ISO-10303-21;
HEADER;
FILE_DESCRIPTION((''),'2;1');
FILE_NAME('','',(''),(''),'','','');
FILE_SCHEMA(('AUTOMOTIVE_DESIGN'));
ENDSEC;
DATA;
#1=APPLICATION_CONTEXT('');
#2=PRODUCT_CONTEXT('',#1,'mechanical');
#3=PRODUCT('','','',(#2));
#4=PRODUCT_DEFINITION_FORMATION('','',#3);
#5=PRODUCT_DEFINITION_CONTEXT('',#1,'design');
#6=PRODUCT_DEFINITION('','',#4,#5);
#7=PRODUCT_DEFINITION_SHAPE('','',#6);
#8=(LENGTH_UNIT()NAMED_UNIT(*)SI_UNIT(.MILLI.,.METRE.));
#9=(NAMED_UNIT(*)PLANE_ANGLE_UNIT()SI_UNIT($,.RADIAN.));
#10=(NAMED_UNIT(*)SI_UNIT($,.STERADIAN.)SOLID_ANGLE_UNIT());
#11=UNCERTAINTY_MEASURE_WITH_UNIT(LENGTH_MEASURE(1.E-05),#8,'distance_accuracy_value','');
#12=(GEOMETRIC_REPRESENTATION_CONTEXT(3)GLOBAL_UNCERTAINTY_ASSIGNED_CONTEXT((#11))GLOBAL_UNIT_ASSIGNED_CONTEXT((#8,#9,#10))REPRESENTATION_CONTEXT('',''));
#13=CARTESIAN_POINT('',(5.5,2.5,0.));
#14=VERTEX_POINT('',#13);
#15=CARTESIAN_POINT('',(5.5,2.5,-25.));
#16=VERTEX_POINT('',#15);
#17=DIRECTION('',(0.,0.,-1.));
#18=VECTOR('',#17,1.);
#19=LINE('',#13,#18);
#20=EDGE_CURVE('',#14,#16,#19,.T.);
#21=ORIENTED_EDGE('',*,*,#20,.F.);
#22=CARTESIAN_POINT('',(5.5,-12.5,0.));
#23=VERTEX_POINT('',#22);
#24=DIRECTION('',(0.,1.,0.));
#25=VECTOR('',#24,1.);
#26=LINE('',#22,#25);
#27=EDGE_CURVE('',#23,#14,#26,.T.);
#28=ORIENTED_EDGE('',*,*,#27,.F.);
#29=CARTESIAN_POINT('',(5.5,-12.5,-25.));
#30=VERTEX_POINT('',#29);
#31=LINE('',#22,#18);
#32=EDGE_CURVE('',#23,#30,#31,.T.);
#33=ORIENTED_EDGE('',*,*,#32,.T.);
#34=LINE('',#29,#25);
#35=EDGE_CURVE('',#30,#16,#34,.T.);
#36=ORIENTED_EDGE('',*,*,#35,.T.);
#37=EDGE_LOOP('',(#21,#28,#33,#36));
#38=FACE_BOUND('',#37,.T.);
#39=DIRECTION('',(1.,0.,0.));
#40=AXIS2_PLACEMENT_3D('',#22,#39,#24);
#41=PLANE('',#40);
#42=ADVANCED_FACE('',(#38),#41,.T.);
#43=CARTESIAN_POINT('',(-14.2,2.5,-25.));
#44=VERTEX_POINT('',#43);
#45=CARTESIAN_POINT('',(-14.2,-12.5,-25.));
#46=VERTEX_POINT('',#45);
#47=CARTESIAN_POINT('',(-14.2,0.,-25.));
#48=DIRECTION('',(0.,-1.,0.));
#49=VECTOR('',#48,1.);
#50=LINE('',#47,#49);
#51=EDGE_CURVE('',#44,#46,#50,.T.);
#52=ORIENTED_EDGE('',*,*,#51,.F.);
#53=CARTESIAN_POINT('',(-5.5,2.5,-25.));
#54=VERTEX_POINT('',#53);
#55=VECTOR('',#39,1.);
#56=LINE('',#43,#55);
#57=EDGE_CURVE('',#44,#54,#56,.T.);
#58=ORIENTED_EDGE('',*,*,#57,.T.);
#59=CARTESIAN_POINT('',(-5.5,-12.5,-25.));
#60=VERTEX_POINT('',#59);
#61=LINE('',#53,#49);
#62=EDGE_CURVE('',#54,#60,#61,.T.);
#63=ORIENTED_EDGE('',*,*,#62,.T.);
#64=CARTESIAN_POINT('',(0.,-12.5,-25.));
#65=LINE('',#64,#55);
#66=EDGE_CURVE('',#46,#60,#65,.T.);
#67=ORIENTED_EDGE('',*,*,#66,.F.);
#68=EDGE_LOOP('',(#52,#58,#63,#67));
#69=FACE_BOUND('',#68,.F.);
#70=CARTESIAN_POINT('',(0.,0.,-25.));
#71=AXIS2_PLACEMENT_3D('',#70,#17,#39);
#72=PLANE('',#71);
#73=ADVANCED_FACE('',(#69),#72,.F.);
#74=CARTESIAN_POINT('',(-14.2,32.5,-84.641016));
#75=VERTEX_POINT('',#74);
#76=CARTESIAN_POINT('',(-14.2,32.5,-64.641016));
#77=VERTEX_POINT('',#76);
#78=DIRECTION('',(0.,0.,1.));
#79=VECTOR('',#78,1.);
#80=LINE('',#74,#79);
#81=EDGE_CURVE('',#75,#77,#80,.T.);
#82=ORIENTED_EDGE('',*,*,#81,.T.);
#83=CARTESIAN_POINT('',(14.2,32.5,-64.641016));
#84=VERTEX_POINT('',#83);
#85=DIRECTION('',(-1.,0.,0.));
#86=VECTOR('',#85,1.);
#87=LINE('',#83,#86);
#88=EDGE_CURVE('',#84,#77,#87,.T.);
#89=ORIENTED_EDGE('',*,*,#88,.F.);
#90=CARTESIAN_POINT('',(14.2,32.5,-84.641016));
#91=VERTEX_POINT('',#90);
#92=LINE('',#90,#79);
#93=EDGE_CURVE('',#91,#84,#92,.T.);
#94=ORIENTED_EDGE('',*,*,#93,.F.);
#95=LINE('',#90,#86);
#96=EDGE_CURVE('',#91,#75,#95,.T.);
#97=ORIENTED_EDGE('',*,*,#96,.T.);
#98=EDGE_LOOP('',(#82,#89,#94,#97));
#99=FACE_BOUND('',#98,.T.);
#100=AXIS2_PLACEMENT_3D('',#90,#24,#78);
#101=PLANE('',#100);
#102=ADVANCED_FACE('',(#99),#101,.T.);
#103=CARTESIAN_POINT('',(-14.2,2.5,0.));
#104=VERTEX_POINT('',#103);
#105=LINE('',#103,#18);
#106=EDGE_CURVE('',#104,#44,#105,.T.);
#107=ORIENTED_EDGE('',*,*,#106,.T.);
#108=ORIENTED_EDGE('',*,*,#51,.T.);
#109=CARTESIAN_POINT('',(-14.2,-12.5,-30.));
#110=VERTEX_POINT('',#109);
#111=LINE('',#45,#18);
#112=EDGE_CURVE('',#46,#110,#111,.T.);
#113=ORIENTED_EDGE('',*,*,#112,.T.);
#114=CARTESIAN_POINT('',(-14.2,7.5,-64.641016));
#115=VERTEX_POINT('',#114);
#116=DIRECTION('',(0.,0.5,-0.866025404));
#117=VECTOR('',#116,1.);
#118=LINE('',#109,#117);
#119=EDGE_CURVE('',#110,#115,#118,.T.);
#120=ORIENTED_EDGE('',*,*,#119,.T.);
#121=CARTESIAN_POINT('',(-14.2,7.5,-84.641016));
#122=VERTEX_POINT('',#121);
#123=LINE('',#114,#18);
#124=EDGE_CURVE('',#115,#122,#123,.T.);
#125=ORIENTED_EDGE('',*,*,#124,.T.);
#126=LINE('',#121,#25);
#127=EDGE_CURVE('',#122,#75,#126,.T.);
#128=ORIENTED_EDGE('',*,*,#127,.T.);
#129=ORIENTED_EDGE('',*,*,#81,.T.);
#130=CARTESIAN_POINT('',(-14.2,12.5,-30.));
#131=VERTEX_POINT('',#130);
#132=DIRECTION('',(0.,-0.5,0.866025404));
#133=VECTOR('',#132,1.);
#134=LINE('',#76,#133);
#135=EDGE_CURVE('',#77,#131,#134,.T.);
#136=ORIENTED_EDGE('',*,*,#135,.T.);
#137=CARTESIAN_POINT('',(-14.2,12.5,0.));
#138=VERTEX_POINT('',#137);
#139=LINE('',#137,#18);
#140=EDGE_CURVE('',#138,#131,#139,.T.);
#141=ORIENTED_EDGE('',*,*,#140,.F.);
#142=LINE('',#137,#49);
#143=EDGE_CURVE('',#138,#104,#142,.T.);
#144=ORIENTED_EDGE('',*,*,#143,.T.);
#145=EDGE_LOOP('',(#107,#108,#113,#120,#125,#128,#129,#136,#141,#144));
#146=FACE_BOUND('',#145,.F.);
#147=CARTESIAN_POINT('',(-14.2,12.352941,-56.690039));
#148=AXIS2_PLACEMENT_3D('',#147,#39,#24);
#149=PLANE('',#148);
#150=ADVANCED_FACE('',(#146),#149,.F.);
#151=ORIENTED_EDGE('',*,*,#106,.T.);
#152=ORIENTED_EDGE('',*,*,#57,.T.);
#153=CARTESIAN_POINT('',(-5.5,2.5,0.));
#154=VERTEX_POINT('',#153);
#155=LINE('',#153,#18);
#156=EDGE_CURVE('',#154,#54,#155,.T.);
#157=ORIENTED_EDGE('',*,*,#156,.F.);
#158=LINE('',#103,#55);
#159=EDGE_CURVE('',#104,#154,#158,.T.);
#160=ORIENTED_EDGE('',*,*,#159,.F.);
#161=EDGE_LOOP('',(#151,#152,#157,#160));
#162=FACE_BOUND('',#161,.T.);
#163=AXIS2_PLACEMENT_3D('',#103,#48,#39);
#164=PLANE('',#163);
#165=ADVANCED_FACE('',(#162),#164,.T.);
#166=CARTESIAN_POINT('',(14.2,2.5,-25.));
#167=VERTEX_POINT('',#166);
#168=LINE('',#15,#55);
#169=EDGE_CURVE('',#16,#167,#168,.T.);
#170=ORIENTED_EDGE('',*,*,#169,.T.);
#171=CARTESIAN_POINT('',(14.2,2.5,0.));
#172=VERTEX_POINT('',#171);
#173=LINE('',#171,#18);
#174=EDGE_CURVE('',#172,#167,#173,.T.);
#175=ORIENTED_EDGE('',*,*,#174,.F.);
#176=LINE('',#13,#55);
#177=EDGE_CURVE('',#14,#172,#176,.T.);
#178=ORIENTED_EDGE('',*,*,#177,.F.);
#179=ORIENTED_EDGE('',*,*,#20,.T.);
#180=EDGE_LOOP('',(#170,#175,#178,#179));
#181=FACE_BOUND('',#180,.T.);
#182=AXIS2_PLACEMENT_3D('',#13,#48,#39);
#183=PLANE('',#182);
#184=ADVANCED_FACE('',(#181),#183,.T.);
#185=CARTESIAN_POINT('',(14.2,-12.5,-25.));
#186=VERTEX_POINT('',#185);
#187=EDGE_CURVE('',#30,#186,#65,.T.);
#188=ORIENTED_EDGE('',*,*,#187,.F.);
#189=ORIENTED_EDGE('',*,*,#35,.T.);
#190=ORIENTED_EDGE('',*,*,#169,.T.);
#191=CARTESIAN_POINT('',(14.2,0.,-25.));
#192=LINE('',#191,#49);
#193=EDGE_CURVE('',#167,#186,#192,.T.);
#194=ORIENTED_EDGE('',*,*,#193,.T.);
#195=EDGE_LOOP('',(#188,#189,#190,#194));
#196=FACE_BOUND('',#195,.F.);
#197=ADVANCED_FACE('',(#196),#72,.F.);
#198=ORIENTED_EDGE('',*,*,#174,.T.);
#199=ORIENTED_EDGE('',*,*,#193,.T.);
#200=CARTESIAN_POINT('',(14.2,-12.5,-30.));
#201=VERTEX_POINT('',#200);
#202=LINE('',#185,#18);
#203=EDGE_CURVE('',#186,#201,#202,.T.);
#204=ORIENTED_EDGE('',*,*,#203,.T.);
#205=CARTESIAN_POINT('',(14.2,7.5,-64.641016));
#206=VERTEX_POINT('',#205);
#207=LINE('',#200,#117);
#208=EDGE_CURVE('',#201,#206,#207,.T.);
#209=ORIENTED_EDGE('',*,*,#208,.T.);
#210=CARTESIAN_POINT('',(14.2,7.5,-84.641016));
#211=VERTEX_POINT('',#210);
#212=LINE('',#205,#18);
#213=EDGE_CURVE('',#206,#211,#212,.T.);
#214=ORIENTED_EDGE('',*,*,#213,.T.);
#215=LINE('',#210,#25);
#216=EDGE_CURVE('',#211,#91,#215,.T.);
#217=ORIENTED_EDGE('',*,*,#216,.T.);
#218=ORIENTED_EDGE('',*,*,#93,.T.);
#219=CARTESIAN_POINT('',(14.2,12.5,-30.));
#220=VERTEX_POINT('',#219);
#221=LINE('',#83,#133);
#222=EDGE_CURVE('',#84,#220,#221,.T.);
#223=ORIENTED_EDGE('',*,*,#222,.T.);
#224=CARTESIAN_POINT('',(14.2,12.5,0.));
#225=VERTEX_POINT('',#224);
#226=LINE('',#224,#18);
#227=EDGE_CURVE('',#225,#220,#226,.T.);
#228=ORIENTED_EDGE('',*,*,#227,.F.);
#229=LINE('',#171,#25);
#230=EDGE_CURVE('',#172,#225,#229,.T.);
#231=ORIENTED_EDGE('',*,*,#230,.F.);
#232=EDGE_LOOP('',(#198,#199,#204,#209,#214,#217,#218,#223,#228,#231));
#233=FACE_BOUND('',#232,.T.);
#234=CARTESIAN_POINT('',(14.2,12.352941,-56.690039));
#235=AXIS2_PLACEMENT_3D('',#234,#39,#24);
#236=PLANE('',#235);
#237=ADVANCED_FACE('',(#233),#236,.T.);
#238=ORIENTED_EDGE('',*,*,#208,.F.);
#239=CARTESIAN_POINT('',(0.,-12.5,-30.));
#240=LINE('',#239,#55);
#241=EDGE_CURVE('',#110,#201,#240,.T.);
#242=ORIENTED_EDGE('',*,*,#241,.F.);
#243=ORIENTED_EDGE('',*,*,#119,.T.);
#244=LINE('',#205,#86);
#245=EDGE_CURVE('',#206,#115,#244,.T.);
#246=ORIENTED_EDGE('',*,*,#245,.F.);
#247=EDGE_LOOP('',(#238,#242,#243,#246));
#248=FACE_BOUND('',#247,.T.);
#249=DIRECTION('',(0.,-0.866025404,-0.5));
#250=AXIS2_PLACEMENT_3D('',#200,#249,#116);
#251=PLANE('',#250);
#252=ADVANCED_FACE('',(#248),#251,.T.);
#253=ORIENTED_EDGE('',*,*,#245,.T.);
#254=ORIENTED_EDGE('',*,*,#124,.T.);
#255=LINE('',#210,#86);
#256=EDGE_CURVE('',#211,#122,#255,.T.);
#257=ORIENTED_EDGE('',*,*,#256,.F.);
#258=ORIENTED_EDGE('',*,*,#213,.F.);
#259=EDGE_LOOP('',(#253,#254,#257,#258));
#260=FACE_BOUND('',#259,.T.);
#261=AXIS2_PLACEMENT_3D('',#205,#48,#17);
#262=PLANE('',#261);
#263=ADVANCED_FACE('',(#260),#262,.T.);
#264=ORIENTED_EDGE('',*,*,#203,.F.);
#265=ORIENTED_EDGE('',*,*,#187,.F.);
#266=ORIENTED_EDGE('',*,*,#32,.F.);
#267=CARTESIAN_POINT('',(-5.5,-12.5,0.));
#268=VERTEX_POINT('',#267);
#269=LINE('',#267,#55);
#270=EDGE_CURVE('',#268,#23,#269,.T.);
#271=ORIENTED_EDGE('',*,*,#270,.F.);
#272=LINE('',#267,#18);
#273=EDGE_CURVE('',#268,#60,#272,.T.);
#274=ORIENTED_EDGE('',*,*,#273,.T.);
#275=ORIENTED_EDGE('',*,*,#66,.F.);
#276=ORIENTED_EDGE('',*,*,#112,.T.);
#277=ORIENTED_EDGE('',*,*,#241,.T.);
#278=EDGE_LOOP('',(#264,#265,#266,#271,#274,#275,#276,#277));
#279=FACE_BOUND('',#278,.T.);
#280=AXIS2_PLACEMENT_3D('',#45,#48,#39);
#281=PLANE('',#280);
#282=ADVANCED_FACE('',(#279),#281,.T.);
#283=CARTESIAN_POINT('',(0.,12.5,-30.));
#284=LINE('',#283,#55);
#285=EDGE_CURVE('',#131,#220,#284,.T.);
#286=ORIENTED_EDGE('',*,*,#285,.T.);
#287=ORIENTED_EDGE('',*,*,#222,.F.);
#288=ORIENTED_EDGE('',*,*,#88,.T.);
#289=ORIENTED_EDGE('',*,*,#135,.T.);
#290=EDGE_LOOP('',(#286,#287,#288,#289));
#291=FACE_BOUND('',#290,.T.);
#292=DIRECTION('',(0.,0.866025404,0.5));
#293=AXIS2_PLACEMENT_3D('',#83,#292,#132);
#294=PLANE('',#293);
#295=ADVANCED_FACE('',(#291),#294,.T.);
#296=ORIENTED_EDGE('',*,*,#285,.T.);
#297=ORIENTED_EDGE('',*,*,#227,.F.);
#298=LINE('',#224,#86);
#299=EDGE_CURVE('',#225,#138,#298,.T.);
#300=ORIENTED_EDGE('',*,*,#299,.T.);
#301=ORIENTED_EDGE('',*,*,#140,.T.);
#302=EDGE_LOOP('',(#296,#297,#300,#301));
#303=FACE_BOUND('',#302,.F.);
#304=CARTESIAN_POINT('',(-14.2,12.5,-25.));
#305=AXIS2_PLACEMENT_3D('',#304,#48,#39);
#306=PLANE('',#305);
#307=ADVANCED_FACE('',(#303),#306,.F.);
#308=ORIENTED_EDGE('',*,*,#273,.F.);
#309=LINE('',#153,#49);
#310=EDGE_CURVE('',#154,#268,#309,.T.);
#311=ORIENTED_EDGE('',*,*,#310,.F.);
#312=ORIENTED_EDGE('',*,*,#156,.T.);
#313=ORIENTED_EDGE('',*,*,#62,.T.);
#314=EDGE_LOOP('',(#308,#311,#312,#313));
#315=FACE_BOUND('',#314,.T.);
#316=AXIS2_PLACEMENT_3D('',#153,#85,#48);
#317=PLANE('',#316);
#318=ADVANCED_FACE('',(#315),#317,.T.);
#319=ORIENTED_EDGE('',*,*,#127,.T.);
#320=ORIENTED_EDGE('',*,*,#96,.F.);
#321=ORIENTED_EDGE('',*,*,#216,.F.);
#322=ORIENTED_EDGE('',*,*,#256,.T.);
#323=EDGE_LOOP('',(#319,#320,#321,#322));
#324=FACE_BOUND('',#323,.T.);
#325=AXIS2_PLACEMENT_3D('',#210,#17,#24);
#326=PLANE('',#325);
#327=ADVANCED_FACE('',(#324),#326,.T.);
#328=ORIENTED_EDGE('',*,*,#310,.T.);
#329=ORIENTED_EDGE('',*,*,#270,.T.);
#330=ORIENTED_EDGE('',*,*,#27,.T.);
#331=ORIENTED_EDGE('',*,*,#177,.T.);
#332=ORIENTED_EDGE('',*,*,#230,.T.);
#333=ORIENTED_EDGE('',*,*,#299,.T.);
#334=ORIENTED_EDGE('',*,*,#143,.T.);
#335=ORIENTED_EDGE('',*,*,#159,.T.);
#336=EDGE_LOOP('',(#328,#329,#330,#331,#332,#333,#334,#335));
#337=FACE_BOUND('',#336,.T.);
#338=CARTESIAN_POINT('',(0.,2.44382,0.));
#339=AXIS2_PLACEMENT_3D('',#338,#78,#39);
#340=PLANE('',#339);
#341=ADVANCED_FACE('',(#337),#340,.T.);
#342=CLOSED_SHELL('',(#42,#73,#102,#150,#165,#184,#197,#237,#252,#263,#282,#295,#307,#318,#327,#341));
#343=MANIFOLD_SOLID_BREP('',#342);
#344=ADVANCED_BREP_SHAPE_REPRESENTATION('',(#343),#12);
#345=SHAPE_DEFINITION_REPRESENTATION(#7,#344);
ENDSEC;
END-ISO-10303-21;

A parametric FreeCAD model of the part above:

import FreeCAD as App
import Part
import Sketcher

V = App.Vector
Q = App.Units.Quantity


def add_polygon(sketch, points):
    """Adds a closed chain of lines whose ends are joined by coincident constraints."""
    first, n = sketch.GeometryCount, len(points)
    for a, b in zip(points, points[1:] + points[:1]):
        sketch.addGeometry(Part.LineSegment(App.Vector(*a, 0), App.Vector(*b, 0)), False)
    for i in range(n):
        sketch.addConstraint(Sketcher.Constraint("Coincident", first + i, 2, first + (i + 1) % n, 1))

doc = App.newDocument("Part")
params = doc.addObject("Spreadsheet::Sheet", "Params")
for row, (alias, value) in enumerate([
    ("sketch1_width", "11 mm"),
    ("sketch1_height", "15 mm"),
    ("sketch1_height2", "10 mm"),
    ("sketch1_width2", "8.7 mm"),
    ("pad1_length", "25 mm"),
    ("sketch2_height", "25 mm"),
    ("sketch2_width", "28.4 mm"),
    ("pad2_length", "5 mm"),
    ("sketch3_width", "25 mm"),
    ("sketch3_height", "20 mm"),
    ("sketch3_length", "40 mm"),
    ("pad3_length", "28.4 mm"),
], start=1):
    params.set(f"A{row}", alias)
    params.set(f"B{row}", "=" + value)
    params.setAlias(f"B{row}", alias)

body = doc.addObject("PartDesign::Body", "Body")

# Sketch on XY plane
sketch1 = body.newObject("Sketcher::SketchObject", "Sketch")
sketch1.AttachmentSupport = (doc.getObject("XY_Plane"), [""])
sketch1.MapMode = "FlatFace"
add_polygon(sketch1, [(-5.5, 2.5), (-5.5, -12.5), (5.5, -12.5), (5.5, 2.5), (14.2, 2.5), (14.2, 12.5), (-14.2, 12.5), (-14.2, 2.5)])  # lines 0-7
sketch1.addConstraint([
    Sketcher.Constraint("Vertical", 0),
    Sketcher.Constraint("Horizontal", 1),
    Sketcher.Constraint("Vertical", 2),
    Sketcher.Constraint("Horizontal", 3),
    Sketcher.Constraint("Vertical", 4),
    Sketcher.Constraint("Horizontal", 5),
    Sketcher.Constraint("Vertical", 6),
    Sketcher.Constraint("Horizontal", 7),
    Sketcher.Constraint("Symmetric", 3, 2, 6, 2, -2),
    Sketcher.Constraint("Equal", 3, 7),
    Sketcher.Constraint("DistanceX", 1, 1, 1, 2, Q("11 mm")),
    Sketcher.Constraint("DistanceY", 0, 2, 0, 1, Q("15 mm")),
    Sketcher.Constraint("DistanceY", 4, 1, 4, 2, Q("10 mm")),
    Sketcher.Constraint("DistanceX", 3, 1, 3, 2, Q("8.7 mm")),
    Sketcher.Constraint("DistanceY", 0, 2, -1, 1, Q("12.5 mm")),
])
sketch1.setExpression("Constraints[18]", "Params.sketch1_width")
sketch1.setExpression("Constraints[19]", "Params.sketch1_height")
sketch1.setExpression("Constraints[20]", "Params.sketch1_height2")
sketch1.setExpression("Constraints[21]", "Params.sketch1_width2")
pad1 = body.newObject("PartDesign::Pad", "Pad")
pad1.Profile = sketch1
pad1.setExpression("Length", "Params.pad1_length")
pad1.Reversed = True

# Sketch on XY plane
sketch2 = body.newObject("Sketcher::SketchObject", "Sketch001")
sketch2.AttachmentSupport = (doc.getObject("XY_Plane"), [""])
sketch2.MapMode = "FlatFace"
sketch2.AttachmentOffset = App.Placement(V(0, 0, -25), App.Rotation())
add_polygon(sketch2, [(-14.2, -12.5), (-14.2, 12.5), (14.2, 12.5), (14.2, -12.5)])  # lines 0-3
sketch2.addConstraint([
    Sketcher.Constraint("Vertical", 0),
    Sketcher.Constraint("Horizontal", 1),
    Sketcher.Constraint("Vertical", 2),
    Sketcher.Constraint("Horizontal", 3),
    Sketcher.Constraint("Symmetric", 0, 2, 2, 2, -1, 1),
    Sketcher.Constraint("DistanceY", 0, 1, 0, 2, Q("25 mm")),
    Sketcher.Constraint("DistanceX", 1, 1, 1, 2, Q("28.4 mm")),
])
sketch2.setExpression("Constraints[9]", "Params.sketch2_height")
sketch2.setExpression("Constraints[10]", "Params.sketch2_width")
pad2 = body.newObject("PartDesign::Pad", "Pad001")
pad2.Profile = sketch2
pad2.setExpression("Length", "Params.pad2_length")
pad2.Reversed = True

# Sketch on YZ plane
sketch3 = body.newObject("Sketcher::SketchObject", "Sketch002")
sketch3.AttachmentSupport = (doc.getObject("YZ_Plane"), [""])
sketch3.MapMode = "FlatFace"
sketch3.AttachmentOffset = App.Placement(V(0, 0, 14.2), App.Rotation())
add_polygon(sketch3, [(32.5, -64.641016), (12.5, -30), (-12.5, -30), (7.5, -64.641016), (7.5, -84.641016), (32.5, -84.641016)])  # lines 0-5
sketch3.addConstraint([
    Sketcher.Constraint("Horizontal", 1),
    Sketcher.Constraint("Vertical", 3),
    Sketcher.Constraint("Horizontal", 4),
    Sketcher.Constraint("Vertical", 5),
    Sketcher.Constraint("Parallel", 0, 2),
    Sketcher.Constraint("Horizontal", 2, 2, 5, 2),
    Sketcher.Constraint("DistanceX", 1, 2, 1, 1, Q("25 mm")),
    Sketcher.Constraint("DistanceY", 3, 2, 3, 1, Q("20 mm")),
    Sketcher.Constraint("Angle", 0, Q("120 deg")),
    Sketcher.Constraint("Distance", 0, Q("40 mm")),
    Sketcher.Constraint("DistanceY", 0, 2, -1, 1, Q("30 mm")),
    Sketcher.Constraint("DistanceX", -1, 1, 0, 2, Q("12.5 mm")),
])
sketch3.setExpression("Constraints[12]", "Params.sketch3_width")
sketch3.setExpression("Constraints[13]", "Params.sketch3_height")
sketch3.setExpression("Constraints[15]", "Params.sketch3_length")
pad3 = body.newObject("PartDesign::Pad", "Pad002")
pad3.Profile = sketch3
pad3.setExpression("Length", "Params.pad3_length")
pad3.Reversed = True

doc.recompute()
